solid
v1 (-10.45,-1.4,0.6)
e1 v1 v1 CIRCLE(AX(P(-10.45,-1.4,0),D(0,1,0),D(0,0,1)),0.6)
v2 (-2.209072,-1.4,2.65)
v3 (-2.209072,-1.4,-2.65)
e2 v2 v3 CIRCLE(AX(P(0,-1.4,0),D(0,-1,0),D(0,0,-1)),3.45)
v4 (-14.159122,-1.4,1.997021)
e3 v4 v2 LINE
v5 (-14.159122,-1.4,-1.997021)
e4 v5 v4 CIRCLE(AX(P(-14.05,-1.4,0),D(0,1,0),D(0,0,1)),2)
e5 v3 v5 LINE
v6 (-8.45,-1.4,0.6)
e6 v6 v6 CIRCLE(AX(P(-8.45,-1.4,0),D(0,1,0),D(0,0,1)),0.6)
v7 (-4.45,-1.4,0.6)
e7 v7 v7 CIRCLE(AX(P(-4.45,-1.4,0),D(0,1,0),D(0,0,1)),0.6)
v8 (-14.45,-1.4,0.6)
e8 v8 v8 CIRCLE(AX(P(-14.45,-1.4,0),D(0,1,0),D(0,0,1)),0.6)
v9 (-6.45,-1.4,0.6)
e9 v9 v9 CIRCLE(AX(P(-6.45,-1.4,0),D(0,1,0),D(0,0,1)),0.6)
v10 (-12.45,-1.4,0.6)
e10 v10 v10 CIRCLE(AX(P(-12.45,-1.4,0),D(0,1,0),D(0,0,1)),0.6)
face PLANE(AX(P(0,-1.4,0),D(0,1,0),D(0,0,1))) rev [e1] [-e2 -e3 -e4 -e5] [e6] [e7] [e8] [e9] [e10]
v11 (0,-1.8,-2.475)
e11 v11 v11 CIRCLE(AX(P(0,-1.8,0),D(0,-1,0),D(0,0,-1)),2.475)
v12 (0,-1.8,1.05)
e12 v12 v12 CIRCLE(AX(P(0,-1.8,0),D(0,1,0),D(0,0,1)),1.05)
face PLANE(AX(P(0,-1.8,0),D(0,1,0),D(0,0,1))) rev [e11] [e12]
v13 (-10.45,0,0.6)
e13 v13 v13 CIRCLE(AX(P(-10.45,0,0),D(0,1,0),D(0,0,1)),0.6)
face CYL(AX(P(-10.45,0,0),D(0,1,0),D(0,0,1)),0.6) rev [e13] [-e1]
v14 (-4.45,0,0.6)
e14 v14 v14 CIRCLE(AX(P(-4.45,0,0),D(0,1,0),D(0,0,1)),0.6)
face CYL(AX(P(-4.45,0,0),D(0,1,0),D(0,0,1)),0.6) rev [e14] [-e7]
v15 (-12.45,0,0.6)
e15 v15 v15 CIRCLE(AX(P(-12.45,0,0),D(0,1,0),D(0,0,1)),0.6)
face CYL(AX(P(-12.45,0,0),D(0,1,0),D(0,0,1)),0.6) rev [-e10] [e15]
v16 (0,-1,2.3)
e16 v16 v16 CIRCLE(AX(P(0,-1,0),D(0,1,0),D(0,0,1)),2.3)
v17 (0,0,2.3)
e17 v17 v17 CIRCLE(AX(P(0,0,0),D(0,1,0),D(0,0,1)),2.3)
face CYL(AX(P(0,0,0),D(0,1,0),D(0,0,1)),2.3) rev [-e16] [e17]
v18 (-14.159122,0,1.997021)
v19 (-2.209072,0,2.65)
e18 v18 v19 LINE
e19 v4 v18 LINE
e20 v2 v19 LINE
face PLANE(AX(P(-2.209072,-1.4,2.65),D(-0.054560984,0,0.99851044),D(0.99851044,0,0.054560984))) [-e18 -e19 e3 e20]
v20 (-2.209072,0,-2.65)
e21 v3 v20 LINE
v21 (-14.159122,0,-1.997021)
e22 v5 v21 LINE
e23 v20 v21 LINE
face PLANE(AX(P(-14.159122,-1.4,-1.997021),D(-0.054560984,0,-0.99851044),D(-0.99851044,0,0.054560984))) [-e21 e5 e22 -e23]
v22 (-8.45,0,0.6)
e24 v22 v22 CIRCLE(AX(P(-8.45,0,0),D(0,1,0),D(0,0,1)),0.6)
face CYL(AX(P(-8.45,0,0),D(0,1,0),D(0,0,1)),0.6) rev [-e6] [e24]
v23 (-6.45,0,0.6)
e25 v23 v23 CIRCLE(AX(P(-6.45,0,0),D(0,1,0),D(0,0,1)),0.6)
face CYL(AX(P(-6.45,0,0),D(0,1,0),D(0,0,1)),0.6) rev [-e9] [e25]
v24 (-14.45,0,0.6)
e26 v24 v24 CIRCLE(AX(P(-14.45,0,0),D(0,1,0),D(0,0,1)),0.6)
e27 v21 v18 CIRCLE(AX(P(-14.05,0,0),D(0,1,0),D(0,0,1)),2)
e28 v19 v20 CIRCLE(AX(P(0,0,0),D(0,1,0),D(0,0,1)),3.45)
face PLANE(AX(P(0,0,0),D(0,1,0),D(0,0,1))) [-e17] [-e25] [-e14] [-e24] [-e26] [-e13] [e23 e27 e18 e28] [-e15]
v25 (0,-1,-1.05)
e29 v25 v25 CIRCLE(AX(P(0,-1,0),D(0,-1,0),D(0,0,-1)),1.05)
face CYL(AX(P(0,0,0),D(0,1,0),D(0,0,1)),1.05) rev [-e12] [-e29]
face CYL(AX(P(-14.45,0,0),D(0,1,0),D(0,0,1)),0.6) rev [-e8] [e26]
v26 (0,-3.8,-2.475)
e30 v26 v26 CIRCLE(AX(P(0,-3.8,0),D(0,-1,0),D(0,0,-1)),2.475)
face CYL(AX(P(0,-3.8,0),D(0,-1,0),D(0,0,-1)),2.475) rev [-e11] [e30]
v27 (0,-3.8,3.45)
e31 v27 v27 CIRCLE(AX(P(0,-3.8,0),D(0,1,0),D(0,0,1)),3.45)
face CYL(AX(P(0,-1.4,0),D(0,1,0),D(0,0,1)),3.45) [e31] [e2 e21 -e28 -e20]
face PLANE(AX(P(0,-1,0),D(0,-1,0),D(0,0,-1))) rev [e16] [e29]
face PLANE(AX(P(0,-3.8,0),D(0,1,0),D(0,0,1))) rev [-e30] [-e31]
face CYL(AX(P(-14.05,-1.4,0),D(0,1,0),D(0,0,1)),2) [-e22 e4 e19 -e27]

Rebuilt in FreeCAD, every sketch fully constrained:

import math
import FreeCAD as App
import Part
import Sketcher

V = App.Vector
Q = App.Units.Quantity

doc = App.newDocument("Part")
body = doc.addObject("PartDesign::Body", "Body")

sketch1 = body.newObject("Sketcher::SketchObject", "Sketch")
sketch1.AttachmentSupport = (doc.getObject("XZ_Plane"), [""])
sketch1.MapMode = "FlatFace"
sketch1.addGeometry(Part.LineSegment(V(-2.2, -2.6, 0), V(-14.2, -2, 0)), False)
sketch1.addGeometry(Part.ArcOfCircle(Part.Circle(V(-14.1, 0, 0), V(0, 0, 1), 2), math.radians(93), math.radians(267)), False)
sketch1.addGeometry(Part.LineSegment(V(-14.2, 2, 0), V(-2.2, 2.6, 0)), False)
sketch1.addGeometry(Part.ArcOfCircle(Part.Circle(V(0, 0, 0), V(0, 0, 1), 3.5), math.radians(-130), math.radians(130)), False)
sketch1.addConstraint(Sketcher.Constraint("Tangent", 0, 2, 1, 2))
sketch1.addConstraint(Sketcher.Constraint("Tangent", 1, 1, 2, 1))
sketch1.addConstraint(Sketcher.Constraint("Coincident", 2, 2, 3, 2))
sketch1.addConstraint(Sketcher.Constraint("Coincident", 3, 1, 0, 1))
sketch1.addConstraint(Sketcher.Constraint("Coincident", 3, 3, -1, 1))
sketch1.addConstraint(Sketcher.Constraint("Symmetric", 0, 2, 1, 1, -1))
sketch1.addConstraint(Sketcher.Constraint("Radius", 1, Q("2 mm")))
sketch1.addConstraint(Sketcher.Constraint("Radius", 3, Q("3.45 mm")))
sketch1.addConstraint(Sketcher.Constraint("DistanceY", 3, 1, 2, 2, Q("5.3 mm")))
sketch1.addConstraint(Sketcher.Constraint("DistanceX", 1, 3, -1, 1, Q("14.05 mm")))
pad1 = body.newObject("PartDesign::Pad", "Pad")
pad1.Profile = sketch1
pad1.Length = 1.4

sketch2 = body.newObject("Sketcher::SketchObject", "Sketch001")
sketch2.AttachmentSupport = (doc.getObject("XZ_Plane"), [""])
sketch2.MapMode = "FlatFace"
sketch2.AttachmentOffset = App.Placement(V(0, 0, 1.4), App.Rotation())
sketch2.addGeometry(Part.Circle(V(0, 0, 0), V(0, 0, 1), 3.5), False)
sketch2.addConstraint(Sketcher.Constraint("Coincident", 0, 3, -1, 1))
sketch2.addConstraint(Sketcher.Constraint("Diameter", 0, Q("6.9 mm")))
pad2 = body.newObject("PartDesign::Pad", "Pad001")
pad2.Profile = sketch2
pad2.Length = 2.4

sketch3 = body.newObject("Sketcher::SketchObject", "Sketch002")
sketch3.AttachmentSupport = (doc.getObject("XZ_Plane"), [""])
sketch3.MapMode = "FlatFace"
sketch3.addGeometry(Part.Circle(V(-14.4, 0, 0), V(0, 0, 1), 0.6), False)
sketch3.addConstraint(Sketcher.Constraint("PointOnObject", 0, 3, -1))
sketch3.addConstraint(Sketcher.Constraint("Diameter", 0, Q("1.2 mm")))
sketch3.addConstraint(Sketcher.Constraint("DistanceX", 0, 3, -1, 1, Q("14.45 mm")))
doc.recompute()
hole = body.newObject("PartDesign::Hole", "Hole")
hole.Profile = sketch3
hole.ThreadType = "None"
hole.Diameter = 1.2
hole.DepthType = "ThroughAll"
hole.Reversed = True
doc.recompute()

linearpattern = body.newObject("PartDesign::LinearPattern", "LinearPattern")
linearpattern.Originals = [hole]
linearpattern.Direction = (doc.getObject("X_Axis"), [""])
linearpattern.Mode = "offset"
linearpattern.Offset = 2
linearpattern.Occurrences = 6
body.Tip = linearpattern

sketch4 = body.newObject("Sketcher::SketchObject", "Sketch003")
sketch4.AttachmentSupport = (doc.getObject("XZ_Plane"), [""])
sketch4.MapMode = "FlatFace"
sketch4.AttachmentOffset = App.Placement(V(0, 0, 3.8), App.Rotation())
sketch4.addGeometry(Part.Circle(V(0, 0, 0), V(0, 0, 1), 2.5), False)
sketch4.addConstraint(Sketcher.Constraint("Coincident", 0, 3, -1, 1))
sketch4.addConstraint(Sketcher.Constraint("Diameter", 0, Q("4.95 mm")))
doc.recompute()
hole2 = body.newObject("PartDesign::Hole", "Hole001")
hole2.Profile = sketch4
hole2.ThreadType = "None"
hole2.Diameter = 4.95
hole2.DepthType = "Dimension"
hole2.Depth = 2
hole2.DrillPoint = "Flat"

sketch5 = body.newObject("Sketcher::SketchObject", "Sketch004")
sketch5.AttachmentSupport = (doc.getObject("XZ_Plane"), [""])
sketch5.MapMode = "FlatFace"
sketch5.addGeometry(Part.Circle(V(0, 0, 0), V(0, 0, 1), 2.3), False)
sketch5.addConstraint(Sketcher.Constraint("Coincident", 0, 3, -1, 1))
sketch5.addConstraint(Sketcher.Constraint("Diameter", 0, Q("4.6 mm")))
doc.recompute()
hole3 = body.newObject("PartDesign::Hole", "Hole002")
hole3.Profile = sketch5
hole3.ThreadType = "None"
hole3.Diameter = 4.6
hole3.DepthType = "Dimension"
hole3.Depth = 1
hole3.DrillPoint = "Flat"
hole3.Reversed = True

sketch6 = body.newObject("Sketcher::SketchObject", "Sketch005")
sketch6.AttachmentSupport = (doc.getObject("XZ_Plane"), [""])
sketch6.MapMode = "FlatFace"
sketch6.addGeometry(Part.Circle(V(0, 0, 0), V(0, 0, 1), 1.1), False)
sketch6.addConstraint(Sketcher.Constraint("Coincident", 0, 3, -1, 1))
sketch6.addConstraint(Sketcher.Constraint("Diameter", 0, Q("2.1 mm")))
doc.recompute()
hole4 = body.newObject("PartDesign::Hole", "Hole003")
hole4.Profile = sketch6
hole4.ThreadType = "None"
hole4.Diameter = 2.1
hole4.DepthType = "ThroughAll"
hole4.Reversed = True

doc.recompute()
